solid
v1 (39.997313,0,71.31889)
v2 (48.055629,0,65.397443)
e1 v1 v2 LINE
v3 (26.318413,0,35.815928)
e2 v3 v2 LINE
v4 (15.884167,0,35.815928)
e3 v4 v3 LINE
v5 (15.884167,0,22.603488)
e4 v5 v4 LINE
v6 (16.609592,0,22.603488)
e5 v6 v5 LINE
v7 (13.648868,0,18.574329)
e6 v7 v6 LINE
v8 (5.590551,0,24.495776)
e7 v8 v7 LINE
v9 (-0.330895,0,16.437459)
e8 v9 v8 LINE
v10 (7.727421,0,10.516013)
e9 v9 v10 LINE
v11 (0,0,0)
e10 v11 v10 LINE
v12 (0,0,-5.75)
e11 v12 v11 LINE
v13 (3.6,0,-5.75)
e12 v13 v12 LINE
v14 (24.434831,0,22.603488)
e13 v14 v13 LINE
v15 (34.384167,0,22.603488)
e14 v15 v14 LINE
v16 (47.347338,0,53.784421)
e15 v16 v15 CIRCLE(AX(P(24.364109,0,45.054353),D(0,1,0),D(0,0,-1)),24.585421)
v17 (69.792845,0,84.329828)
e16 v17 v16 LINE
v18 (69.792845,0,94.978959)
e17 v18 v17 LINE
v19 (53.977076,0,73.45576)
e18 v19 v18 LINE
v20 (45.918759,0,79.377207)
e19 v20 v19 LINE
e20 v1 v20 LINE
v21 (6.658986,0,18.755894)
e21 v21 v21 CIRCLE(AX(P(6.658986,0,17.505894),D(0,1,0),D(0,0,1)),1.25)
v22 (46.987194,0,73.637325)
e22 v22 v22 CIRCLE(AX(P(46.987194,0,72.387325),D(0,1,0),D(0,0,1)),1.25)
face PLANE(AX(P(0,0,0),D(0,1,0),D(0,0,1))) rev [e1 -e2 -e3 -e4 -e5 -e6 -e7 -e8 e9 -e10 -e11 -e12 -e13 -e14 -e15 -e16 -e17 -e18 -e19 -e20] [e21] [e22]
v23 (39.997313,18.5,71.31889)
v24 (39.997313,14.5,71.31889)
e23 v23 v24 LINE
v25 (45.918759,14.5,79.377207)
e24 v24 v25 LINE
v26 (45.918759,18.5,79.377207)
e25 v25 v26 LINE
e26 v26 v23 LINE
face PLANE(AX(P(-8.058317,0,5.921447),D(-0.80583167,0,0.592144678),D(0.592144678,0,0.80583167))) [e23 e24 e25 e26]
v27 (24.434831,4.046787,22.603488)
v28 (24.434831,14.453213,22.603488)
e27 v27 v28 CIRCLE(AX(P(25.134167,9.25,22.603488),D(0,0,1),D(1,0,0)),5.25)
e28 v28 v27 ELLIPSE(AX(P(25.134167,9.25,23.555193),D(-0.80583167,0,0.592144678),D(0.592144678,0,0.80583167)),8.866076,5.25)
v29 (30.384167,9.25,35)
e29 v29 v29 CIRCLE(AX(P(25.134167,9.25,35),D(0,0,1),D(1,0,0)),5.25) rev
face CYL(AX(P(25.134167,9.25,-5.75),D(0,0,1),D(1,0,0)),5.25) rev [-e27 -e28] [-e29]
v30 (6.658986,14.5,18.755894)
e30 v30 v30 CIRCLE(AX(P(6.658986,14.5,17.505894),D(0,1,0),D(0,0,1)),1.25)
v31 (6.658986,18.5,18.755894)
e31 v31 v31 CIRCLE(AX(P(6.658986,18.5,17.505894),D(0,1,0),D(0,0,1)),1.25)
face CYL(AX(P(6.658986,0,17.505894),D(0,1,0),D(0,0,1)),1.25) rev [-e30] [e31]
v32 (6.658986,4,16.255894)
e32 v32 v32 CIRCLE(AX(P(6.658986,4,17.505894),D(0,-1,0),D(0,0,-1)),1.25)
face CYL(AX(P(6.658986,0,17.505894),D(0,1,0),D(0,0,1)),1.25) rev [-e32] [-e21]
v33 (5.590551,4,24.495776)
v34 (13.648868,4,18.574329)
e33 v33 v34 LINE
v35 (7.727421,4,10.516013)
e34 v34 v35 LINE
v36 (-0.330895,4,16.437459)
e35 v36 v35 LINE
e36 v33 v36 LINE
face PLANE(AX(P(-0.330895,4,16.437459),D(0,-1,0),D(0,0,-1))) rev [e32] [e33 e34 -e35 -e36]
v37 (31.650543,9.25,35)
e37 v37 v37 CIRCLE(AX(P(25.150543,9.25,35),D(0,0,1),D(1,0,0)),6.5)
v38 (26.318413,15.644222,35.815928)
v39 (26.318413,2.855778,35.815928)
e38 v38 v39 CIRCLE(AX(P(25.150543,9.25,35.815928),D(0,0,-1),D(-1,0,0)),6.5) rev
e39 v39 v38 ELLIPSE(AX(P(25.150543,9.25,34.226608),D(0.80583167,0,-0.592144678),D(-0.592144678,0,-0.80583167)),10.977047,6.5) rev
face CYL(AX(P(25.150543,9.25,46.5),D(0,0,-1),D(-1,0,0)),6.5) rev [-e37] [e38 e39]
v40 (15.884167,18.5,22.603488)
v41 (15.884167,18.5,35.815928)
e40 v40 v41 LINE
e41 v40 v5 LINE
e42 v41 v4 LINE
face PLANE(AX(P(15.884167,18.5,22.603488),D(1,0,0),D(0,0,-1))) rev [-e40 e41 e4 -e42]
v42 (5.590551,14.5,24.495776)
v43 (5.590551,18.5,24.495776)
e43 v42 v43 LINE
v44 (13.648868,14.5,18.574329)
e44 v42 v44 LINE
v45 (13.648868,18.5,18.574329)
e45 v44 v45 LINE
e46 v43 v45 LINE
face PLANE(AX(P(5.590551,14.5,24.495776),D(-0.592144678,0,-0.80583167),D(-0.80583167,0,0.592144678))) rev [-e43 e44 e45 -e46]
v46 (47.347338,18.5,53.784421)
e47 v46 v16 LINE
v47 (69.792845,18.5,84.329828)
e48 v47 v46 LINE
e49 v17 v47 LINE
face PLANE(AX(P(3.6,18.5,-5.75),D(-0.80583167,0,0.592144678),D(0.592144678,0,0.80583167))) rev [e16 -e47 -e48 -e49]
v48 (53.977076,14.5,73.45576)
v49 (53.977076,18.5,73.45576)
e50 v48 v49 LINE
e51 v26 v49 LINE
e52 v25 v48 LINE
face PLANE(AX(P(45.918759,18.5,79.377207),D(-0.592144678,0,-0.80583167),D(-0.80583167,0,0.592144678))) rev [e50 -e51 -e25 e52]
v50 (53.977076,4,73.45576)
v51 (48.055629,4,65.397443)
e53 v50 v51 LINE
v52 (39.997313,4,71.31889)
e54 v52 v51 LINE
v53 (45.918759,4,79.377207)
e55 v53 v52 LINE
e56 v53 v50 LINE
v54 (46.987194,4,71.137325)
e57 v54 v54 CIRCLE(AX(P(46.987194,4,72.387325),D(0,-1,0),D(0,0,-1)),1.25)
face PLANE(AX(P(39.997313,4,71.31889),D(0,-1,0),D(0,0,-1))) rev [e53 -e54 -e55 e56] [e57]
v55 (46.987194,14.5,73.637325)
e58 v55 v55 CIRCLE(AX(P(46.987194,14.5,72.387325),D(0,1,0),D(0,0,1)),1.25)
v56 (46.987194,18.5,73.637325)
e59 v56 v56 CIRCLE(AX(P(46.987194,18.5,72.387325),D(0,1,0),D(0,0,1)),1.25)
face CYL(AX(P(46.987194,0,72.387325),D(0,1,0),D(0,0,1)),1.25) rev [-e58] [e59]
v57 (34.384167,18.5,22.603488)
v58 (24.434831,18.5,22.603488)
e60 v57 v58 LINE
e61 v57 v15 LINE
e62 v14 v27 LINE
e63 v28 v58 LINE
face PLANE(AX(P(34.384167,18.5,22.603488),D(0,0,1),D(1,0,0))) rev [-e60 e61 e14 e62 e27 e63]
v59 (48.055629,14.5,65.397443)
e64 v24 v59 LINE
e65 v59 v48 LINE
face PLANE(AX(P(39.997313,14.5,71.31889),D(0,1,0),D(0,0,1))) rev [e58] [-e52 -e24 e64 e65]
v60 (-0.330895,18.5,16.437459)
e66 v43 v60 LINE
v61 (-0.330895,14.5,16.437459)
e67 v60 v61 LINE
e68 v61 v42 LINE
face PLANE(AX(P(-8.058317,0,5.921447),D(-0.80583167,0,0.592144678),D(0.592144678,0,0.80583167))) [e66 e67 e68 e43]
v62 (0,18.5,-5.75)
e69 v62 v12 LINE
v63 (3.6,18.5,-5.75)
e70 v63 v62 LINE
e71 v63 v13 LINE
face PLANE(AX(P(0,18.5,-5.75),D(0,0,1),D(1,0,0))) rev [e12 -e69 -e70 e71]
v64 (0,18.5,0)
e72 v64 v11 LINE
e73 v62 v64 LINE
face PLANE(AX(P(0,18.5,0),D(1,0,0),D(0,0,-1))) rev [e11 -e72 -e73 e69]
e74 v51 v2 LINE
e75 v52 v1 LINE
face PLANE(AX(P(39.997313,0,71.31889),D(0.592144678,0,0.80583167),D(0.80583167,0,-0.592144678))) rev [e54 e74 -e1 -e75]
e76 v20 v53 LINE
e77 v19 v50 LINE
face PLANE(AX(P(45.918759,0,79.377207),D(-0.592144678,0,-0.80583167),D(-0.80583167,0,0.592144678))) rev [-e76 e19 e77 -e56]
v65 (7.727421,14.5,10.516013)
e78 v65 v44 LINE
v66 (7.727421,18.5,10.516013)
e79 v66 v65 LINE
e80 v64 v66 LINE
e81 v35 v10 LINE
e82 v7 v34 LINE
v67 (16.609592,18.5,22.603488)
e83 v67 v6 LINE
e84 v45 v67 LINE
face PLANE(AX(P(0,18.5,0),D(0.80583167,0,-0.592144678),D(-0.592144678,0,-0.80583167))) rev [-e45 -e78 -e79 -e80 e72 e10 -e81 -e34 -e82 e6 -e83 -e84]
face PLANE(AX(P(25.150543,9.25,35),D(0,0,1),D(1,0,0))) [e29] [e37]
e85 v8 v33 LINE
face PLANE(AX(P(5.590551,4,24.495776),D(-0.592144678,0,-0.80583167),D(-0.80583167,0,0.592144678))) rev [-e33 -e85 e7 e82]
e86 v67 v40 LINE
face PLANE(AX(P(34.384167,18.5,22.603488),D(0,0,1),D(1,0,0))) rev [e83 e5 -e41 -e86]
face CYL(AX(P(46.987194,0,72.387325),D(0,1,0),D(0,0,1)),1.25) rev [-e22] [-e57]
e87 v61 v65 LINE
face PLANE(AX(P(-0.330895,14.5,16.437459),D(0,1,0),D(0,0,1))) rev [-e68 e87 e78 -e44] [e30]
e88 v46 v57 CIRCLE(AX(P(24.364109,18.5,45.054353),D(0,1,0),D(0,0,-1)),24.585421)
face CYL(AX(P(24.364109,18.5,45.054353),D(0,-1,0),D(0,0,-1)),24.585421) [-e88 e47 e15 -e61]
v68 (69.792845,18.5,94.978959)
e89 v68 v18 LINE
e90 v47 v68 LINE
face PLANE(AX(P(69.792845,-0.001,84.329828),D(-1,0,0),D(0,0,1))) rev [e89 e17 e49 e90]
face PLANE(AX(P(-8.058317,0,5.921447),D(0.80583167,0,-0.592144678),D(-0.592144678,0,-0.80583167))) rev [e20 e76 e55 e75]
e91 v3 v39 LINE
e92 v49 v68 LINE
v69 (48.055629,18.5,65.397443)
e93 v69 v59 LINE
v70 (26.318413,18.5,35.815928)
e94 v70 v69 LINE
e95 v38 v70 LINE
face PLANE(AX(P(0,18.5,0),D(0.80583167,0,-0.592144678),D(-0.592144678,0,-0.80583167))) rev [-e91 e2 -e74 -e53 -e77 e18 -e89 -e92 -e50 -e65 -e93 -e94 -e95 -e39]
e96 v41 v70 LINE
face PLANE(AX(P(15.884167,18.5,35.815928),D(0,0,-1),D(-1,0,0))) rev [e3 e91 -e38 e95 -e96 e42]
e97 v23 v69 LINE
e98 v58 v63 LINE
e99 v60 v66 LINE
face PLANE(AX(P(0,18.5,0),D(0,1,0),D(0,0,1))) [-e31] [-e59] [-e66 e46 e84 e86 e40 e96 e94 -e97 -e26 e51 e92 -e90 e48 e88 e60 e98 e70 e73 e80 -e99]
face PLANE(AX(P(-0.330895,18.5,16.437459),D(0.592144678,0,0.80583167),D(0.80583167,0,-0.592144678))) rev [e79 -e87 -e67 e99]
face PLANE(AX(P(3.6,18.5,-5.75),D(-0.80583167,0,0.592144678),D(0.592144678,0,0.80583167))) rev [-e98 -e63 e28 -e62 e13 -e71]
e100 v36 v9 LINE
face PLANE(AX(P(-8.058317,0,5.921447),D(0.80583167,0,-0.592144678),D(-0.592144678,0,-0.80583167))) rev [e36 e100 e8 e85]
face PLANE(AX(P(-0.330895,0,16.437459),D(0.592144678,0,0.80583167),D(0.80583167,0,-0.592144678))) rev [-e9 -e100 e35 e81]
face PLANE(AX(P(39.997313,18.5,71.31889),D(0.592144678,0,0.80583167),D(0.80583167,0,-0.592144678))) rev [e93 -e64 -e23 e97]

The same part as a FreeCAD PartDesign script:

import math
import FreeCAD as App
import Part
import Sketcher

V = App.Vector


def add_polygon(sketch, points):
    """Adds a closed chain of lines whose ends are joined by coincident constraints."""
    first, n = sketch.GeometryCount, len(points)
    for a, b in zip(points, points[1:] + points[:1]):
        sketch.addGeometry(Part.LineSegment(App.Vector(*a, 0), App.Vector(*b, 0)), False)
    for i in range(n):
        sketch.addConstraint(Sketcher.Constraint("Coincident", first + i, 2, first + (i + 1) % n, 1))

doc = App.newDocument("Part")
body = doc.addObject("PartDesign::Body", "Body")

# Sketch on XZ plane
sketch1 = body.newObject("Sketcher::SketchObject", "Sketch")
sketch1.AttachmentSupport = (doc.getObject("XZ_Plane"), [""])
sketch1.MapMode = "FlatFace"
add_polygon(sketch1, [(0, -5.75), (0, 0), (69.792845, 94.978959), (77.618085, 94.978959), (3.6, -5.75)])  # lines 0-4
sketch1.addConstraint([
    Sketcher.Constraint("Vertical", 0),
    Sketcher.Constraint("Horizontal", 2),
    Sketcher.Constraint("Horizontal", 4),
    Sketcher.Constraint("Coincident", 0, 2, -1, 1),
    Sketcher.Constraint("Parallel", 1, 3),
    Sketcher.Constraint("Distance", 3, 125.0),
    Sketcher.Constraint("DistanceX", 4, 2, 4, 1, 3.6),
    Sketcher.Constraint("DistanceY", 0, 1, 0, 2, 5.75),
    Sketcher.Constraint("DistanceX", 2, 1, 2, 2, 7.82524),
])
pad1 = body.newObject("PartDesign::Pad", "Pad")
pad1.Profile = sketch1
pad1.Length = 18.5
pad1.Reversed = True

# Sketch on XZ plane
sketch2 = body.newObject("Sketcher::SketchObject", "Sketch001")
sketch2.AttachmentSupport = (doc.getObject("XZ_Plane"), [""])
sketch2.MapMode = "FlatFace"
sketch2.AttachmentOffset = App.Placement(V(0, 0, -9.25), App.Rotation())
add_polygon(sketch2, [(15.884167, 22.603488), (15.884167, 35.815928), (34.384167, 35.815928), (34.384167, 22.603488)])  # lines 0-3
sketch2.addConstraint([
    Sketcher.Constraint("Vertical", 0),
    Sketcher.Constraint("Horizontal", 1),
    Sketcher.Constraint("Vertical", 2),
    Sketcher.Constraint("Horizontal", 3),
    Sketcher.Constraint("DistanceX", 1, 1, 1, 2, 18.5),
    Sketcher.Constraint("DistanceY", 0, 1, 0, 2, 13.21244),
    Sketcher.Constraint("DistanceX", -1, 1, 0, 2, 15.884167),
    Sketcher.Constraint("DistanceY", -1, 1, 0, 2, 35.815928),
])
pad2 = body.newObject("PartDesign::Pad", "Pad001")
pad2.Profile = sketch2
pad2.Length = 18.5
pad2.Midplane = True

# Sketch on XY plane
sketch3 = body.newObject("Sketcher::SketchObject", "Sketch002")
sketch3.AttachmentSupport = (doc.getObject("XY_Plane"), [""])
sketch3.MapMode = "FlatFace"
sketch3.AttachmentOffset = App.Placement(V(0, 0, 30), App.Rotation())
sketch3.addGeometry(Part.Circle(V(25.134167, 9.25, 0), V(0, 0, 1), 5.25), False)
sketch3.addConstraint([
    Sketcher.Constraint("Diameter", 0, 10.5),
    Sketcher.Constraint("DistanceY", -1, 1, 0, 3, 9.25),
    Sketcher.Constraint("DistanceX", -1, 1, 0, 3, 25.134167),
])
pocket1 = body.newObject("PartDesign::Pocket", "Pocket")
pocket1.Profile = sketch3
pocket1.Type = "ThroughAll"
pocket1.Midplane = True

# Sketch on XZ plane
sketch4 = body.newObject("Sketcher::SketchObject", "Sketch003")
sketch4.AttachmentSupport = (doc.getObject("XZ_Plane"), [""])
sketch4.MapMode = "FlatFace"
sketch4.AttachmentOffset = App.Placement(V(0, 0, -9.25), App.Rotation())
sketch4.addGeometry([
    Part.LineSegment(V(34.384167, 22.603488, 0), V(34.143653, 35.815928, 0)),
    Part.LineSegment(V(34.143653, 35.815928, 0), V(47.347338, 53.784421, 0)),
    Part.ArcOfCircle(Part.Circle(V(24.364109, 45.054353, 0), V(0, 0, 1), 24.585421), math.radians(-65.948287), math.radians(20.799038)),
], False)
sketch4.addConstraint([
    Sketcher.Constraint("Coincident", 0, 2, 1, 1),
    Sketcher.Constraint("Coincident", 1, 2, 2, 2),
    Sketcher.Constraint("Coincident", 2, 1, 0, 1),
    Sketcher.Constraint("Radius", 2, 24.585421),
    Sketcher.Constraint("Distance", 0, 13.214629),
    Sketcher.Constraint("DistanceX", -1, 1, 2, 3, 24.364109),
    Sketcher.Constraint("DistanceY", -1, 1, 1, 2, 53.784421),
    Sketcher.Constraint("DistanceX", 2, 3, 1, 2, 22.983229),
    Sketcher.Constraint("DistanceX", 2, 3, 2, 1, 10.020059),
    Sketcher.Constraint("Distance", 1, 22.298072),
])
pad3 = body.newObject("PartDesign::Pad", "Pad002")
pad3.Profile = sketch4
pad3.Length = 18.5
pad3.Midplane = True

# Sketch on XY plane
sketch5 = body.newObject("Sketcher::SketchObject", "Sketch004")
sketch5.AttachmentSupport = (doc.getObject("XY_Plane"), [""])
sketch5.MapMode = "FlatFace"
sketch5.AttachmentOffset = App.Placement(V(0, 0, 35), App.Rotation())
sketch5.addGeometry(Part.Circle(V(25.150543, 9.25, 0), V(0, 0, 1), 6.5), False)
sketch5.addConstraint([
    Sketcher.Constraint("Diameter", 0, 13.0),
    Sketcher.Constraint("DistanceY", -1, 1, 0, 3, 9.25),
    Sketcher.Constraint("DistanceX", -1, 1, 0, 3, 25.150543),
])
pocket2 = body.newObject("PartDesign::Pocket", "Pocket001")
pocket2.Profile = sketch5
pocket2.Length = 11.5
pocket2.Reversed = True

# Sketch on an angled plane
sketch6 = body.newObject("Sketcher::SketchObject", "Sketch005")
sketch6.Placement = App.Placement(V(0, 0, 0), App.Rotation(V(0.592144678, 0, 0.80583167), V(0, 1, 0), V(-0.80583167, 0, 0.592144678), "ZXY"))
add_polygon(sketch6, [(13.049887, 4), (13.049887, 0), (23.049887, 0), (23.049887, 4)])  # lines 0-3
add_polygon(sketch6, [(13.049887, 18.5), (13.049887, 14.5), (23.049887, 14.5), (23.049887, 18.5)])  # lines 4-7
sketch6.addConstraint([
    Sketcher.Constraint("Vertical", 0),
    Sketcher.Constraint("Horizontal", 1),
    Sketcher.Constraint("Vertical", 2),
    Sketcher.Constraint("Horizontal", 3),
    Sketcher.Constraint("Vertical", 4),
    Sketcher.Constraint("Horizontal", 5),
    Sketcher.Constraint("Vertical", 6),
    Sketcher.Constraint("Horizontal", 7),
    Sketcher.Constraint("PointOnObject", 0, 2, -1),
    Sketcher.Constraint("Vertical", 3, 2, 4, 2),
    Sketcher.Constraint("Vertical", 2, 2, 5, 2),
    Sketcher.Constraint("Equal", 2, 4),
    Sketcher.Constraint("DistanceX", 1, 1, 1, 2, 10.0),
    Sketcher.Constraint("DistanceY", 0, 2, 0, 1, 4.0),
    Sketcher.Constraint("DistanceY", -1, 1, 4, 2, 14.5),
    Sketcher.Constraint("DistanceX", -1, 1, 0, 2, 13.049887),
])
pad4 = body.newObject("PartDesign::Pad", "Pad003")
pad4.Profile = sketch6
pad4.Length = 10

# Sketch on an angled plane
sketch7 = body.newObject("Sketcher::SketchObject", "Sketch006")
sketch7.Placement = App.Placement(V(0, 0, 0), App.Rotation(V(0.592144678, 0, 0.80583167), V(0, 1, 0), V(-0.80583167, 0, 0.592144678), "ZXY"))
add_polygon(sketch7, [(81.155216, 4), (81.155216, 0), (91.155216, 0), (91.155216, 4)])  # lines 0-3
add_polygon(sketch7, [(81.155216, 18.5), (81.155216, 14.5), (91.155216, 14.5), (91.155216, 18.5)])  # lines 4-7
sketch7.addConstraint([
    Sketcher.Constraint("Vertical", 0),
    Sketcher.Constraint("Horizontal", 1),
    Sketcher.Constraint("Vertical", 2),
    Sketcher.Constraint("Horizontal", 3),
    Sketcher.Constraint("Vertical", 4),
    Sketcher.Constraint("Horizontal", 5),
    Sketcher.Constraint("Vertical", 6),
    Sketcher.Constraint("Horizontal", 7),
    Sketcher.Constraint("PointOnObject", 0, 2, -1),
    Sketcher.Constraint("Vertical", 3, 2, 4, 2),
    Sketcher.Constraint("Vertical", 2, 2, 5, 2),
    Sketcher.Constraint("Equal", 2, 4),
    Sketcher.Constraint("DistanceX", 1, 1, 1, 2, 10.0),
    Sketcher.Constraint("DistanceY", 0, 2, 0, 1, 4.0),
    Sketcher.Constraint("DistanceY", -1, 1, 4, 2, 14.5),
    Sketcher.Constraint("DistanceX", -1, 1, 0, 2, 81.155216),
])
pad5 = body.newObject("PartDesign::Pad", "Pad004")
pad5.Profile = sketch7
pad5.Length = 10

# Sketch on XZ plane
sketch8 = body.newObject("Sketcher::SketchObject", "Sketch007")
sketch8.AttachmentSupport = (doc.getObject("XZ_Plane"), [""])
sketch8.MapMode = "FlatFace"
sketch8.AttachmentOffset = App.Placement(V(0, 0, -18.5), App.Rotation())
sketch8.addGeometry([
    Part.Circle(V(6.658986, 17.505894, 0), V(0, 0, 1), 1.25),
    Part.Circle(V(46.987194, 72.387325, 0), V(0, 0, 1), 1.25),
], False)
sketch8.addConstraint([
    Sketcher.Constraint("Equal", 0, 1),
    Sketcher.Constraint("Diameter", 0, 2.5),
    Sketcher.Constraint("DistanceY", 0, 3, 1, 3, 54.881431),
    Sketcher.Constraint("DistanceX", -1, 1, 0, 3, 6.658986),
    Sketcher.Constraint("DistanceY", -1, 1, 0, 3, 17.505894),
    Sketcher.Constraint("DistanceX", -1, 1, 1, 3, 46.987194),
])
pocket3 = body.newObject("PartDesign::Pocket", "Pocket002")
pocket3.Profile = sketch8
pocket3.Type = "ThroughAll"
pocket3.Midplane = True

# Sketch on XZ plane
sketch9 = body.newObject("Sketcher::SketchObject", "Sketch008")
sketch9.AttachmentSupport = (doc.getObject("XZ_Plane"), [""])
sketch9.MapMode = "FlatFace"
sketch9.AttachmentOffset = App.Placement(V(0, 0, -18.5), App.Rotation())
add_polygon(sketch9, [(69.792845, 84.329828), (69.792845, 94.978959), (77.618085, 94.978959)])  # lines 0-2
sketch9.addConstraint([
    Sketcher.Constraint("Vertical", 0),
    Sketcher.Constraint("Horizontal", 1),
    Sketcher.Constraint("DistanceX", 1, 1, 1, 2, 7.82524),
    Sketcher.Constraint("DistanceY", 0, 1, 0, 2, 10.64913),
    Sketcher.Constraint("DistanceY", -1, 1, 0, 2, 94.978959),
    Sketcher.Constraint("DistanceX", -1, 1, 0, 2, 69.792845),
])
pocket4 = body.newObject("PartDesign::Pocket", "Pocket003")
pocket4.Profile = sketch9
pocket4.Type = "UpToFirst"
pocket4.Reversed = True

doc.recompute()
